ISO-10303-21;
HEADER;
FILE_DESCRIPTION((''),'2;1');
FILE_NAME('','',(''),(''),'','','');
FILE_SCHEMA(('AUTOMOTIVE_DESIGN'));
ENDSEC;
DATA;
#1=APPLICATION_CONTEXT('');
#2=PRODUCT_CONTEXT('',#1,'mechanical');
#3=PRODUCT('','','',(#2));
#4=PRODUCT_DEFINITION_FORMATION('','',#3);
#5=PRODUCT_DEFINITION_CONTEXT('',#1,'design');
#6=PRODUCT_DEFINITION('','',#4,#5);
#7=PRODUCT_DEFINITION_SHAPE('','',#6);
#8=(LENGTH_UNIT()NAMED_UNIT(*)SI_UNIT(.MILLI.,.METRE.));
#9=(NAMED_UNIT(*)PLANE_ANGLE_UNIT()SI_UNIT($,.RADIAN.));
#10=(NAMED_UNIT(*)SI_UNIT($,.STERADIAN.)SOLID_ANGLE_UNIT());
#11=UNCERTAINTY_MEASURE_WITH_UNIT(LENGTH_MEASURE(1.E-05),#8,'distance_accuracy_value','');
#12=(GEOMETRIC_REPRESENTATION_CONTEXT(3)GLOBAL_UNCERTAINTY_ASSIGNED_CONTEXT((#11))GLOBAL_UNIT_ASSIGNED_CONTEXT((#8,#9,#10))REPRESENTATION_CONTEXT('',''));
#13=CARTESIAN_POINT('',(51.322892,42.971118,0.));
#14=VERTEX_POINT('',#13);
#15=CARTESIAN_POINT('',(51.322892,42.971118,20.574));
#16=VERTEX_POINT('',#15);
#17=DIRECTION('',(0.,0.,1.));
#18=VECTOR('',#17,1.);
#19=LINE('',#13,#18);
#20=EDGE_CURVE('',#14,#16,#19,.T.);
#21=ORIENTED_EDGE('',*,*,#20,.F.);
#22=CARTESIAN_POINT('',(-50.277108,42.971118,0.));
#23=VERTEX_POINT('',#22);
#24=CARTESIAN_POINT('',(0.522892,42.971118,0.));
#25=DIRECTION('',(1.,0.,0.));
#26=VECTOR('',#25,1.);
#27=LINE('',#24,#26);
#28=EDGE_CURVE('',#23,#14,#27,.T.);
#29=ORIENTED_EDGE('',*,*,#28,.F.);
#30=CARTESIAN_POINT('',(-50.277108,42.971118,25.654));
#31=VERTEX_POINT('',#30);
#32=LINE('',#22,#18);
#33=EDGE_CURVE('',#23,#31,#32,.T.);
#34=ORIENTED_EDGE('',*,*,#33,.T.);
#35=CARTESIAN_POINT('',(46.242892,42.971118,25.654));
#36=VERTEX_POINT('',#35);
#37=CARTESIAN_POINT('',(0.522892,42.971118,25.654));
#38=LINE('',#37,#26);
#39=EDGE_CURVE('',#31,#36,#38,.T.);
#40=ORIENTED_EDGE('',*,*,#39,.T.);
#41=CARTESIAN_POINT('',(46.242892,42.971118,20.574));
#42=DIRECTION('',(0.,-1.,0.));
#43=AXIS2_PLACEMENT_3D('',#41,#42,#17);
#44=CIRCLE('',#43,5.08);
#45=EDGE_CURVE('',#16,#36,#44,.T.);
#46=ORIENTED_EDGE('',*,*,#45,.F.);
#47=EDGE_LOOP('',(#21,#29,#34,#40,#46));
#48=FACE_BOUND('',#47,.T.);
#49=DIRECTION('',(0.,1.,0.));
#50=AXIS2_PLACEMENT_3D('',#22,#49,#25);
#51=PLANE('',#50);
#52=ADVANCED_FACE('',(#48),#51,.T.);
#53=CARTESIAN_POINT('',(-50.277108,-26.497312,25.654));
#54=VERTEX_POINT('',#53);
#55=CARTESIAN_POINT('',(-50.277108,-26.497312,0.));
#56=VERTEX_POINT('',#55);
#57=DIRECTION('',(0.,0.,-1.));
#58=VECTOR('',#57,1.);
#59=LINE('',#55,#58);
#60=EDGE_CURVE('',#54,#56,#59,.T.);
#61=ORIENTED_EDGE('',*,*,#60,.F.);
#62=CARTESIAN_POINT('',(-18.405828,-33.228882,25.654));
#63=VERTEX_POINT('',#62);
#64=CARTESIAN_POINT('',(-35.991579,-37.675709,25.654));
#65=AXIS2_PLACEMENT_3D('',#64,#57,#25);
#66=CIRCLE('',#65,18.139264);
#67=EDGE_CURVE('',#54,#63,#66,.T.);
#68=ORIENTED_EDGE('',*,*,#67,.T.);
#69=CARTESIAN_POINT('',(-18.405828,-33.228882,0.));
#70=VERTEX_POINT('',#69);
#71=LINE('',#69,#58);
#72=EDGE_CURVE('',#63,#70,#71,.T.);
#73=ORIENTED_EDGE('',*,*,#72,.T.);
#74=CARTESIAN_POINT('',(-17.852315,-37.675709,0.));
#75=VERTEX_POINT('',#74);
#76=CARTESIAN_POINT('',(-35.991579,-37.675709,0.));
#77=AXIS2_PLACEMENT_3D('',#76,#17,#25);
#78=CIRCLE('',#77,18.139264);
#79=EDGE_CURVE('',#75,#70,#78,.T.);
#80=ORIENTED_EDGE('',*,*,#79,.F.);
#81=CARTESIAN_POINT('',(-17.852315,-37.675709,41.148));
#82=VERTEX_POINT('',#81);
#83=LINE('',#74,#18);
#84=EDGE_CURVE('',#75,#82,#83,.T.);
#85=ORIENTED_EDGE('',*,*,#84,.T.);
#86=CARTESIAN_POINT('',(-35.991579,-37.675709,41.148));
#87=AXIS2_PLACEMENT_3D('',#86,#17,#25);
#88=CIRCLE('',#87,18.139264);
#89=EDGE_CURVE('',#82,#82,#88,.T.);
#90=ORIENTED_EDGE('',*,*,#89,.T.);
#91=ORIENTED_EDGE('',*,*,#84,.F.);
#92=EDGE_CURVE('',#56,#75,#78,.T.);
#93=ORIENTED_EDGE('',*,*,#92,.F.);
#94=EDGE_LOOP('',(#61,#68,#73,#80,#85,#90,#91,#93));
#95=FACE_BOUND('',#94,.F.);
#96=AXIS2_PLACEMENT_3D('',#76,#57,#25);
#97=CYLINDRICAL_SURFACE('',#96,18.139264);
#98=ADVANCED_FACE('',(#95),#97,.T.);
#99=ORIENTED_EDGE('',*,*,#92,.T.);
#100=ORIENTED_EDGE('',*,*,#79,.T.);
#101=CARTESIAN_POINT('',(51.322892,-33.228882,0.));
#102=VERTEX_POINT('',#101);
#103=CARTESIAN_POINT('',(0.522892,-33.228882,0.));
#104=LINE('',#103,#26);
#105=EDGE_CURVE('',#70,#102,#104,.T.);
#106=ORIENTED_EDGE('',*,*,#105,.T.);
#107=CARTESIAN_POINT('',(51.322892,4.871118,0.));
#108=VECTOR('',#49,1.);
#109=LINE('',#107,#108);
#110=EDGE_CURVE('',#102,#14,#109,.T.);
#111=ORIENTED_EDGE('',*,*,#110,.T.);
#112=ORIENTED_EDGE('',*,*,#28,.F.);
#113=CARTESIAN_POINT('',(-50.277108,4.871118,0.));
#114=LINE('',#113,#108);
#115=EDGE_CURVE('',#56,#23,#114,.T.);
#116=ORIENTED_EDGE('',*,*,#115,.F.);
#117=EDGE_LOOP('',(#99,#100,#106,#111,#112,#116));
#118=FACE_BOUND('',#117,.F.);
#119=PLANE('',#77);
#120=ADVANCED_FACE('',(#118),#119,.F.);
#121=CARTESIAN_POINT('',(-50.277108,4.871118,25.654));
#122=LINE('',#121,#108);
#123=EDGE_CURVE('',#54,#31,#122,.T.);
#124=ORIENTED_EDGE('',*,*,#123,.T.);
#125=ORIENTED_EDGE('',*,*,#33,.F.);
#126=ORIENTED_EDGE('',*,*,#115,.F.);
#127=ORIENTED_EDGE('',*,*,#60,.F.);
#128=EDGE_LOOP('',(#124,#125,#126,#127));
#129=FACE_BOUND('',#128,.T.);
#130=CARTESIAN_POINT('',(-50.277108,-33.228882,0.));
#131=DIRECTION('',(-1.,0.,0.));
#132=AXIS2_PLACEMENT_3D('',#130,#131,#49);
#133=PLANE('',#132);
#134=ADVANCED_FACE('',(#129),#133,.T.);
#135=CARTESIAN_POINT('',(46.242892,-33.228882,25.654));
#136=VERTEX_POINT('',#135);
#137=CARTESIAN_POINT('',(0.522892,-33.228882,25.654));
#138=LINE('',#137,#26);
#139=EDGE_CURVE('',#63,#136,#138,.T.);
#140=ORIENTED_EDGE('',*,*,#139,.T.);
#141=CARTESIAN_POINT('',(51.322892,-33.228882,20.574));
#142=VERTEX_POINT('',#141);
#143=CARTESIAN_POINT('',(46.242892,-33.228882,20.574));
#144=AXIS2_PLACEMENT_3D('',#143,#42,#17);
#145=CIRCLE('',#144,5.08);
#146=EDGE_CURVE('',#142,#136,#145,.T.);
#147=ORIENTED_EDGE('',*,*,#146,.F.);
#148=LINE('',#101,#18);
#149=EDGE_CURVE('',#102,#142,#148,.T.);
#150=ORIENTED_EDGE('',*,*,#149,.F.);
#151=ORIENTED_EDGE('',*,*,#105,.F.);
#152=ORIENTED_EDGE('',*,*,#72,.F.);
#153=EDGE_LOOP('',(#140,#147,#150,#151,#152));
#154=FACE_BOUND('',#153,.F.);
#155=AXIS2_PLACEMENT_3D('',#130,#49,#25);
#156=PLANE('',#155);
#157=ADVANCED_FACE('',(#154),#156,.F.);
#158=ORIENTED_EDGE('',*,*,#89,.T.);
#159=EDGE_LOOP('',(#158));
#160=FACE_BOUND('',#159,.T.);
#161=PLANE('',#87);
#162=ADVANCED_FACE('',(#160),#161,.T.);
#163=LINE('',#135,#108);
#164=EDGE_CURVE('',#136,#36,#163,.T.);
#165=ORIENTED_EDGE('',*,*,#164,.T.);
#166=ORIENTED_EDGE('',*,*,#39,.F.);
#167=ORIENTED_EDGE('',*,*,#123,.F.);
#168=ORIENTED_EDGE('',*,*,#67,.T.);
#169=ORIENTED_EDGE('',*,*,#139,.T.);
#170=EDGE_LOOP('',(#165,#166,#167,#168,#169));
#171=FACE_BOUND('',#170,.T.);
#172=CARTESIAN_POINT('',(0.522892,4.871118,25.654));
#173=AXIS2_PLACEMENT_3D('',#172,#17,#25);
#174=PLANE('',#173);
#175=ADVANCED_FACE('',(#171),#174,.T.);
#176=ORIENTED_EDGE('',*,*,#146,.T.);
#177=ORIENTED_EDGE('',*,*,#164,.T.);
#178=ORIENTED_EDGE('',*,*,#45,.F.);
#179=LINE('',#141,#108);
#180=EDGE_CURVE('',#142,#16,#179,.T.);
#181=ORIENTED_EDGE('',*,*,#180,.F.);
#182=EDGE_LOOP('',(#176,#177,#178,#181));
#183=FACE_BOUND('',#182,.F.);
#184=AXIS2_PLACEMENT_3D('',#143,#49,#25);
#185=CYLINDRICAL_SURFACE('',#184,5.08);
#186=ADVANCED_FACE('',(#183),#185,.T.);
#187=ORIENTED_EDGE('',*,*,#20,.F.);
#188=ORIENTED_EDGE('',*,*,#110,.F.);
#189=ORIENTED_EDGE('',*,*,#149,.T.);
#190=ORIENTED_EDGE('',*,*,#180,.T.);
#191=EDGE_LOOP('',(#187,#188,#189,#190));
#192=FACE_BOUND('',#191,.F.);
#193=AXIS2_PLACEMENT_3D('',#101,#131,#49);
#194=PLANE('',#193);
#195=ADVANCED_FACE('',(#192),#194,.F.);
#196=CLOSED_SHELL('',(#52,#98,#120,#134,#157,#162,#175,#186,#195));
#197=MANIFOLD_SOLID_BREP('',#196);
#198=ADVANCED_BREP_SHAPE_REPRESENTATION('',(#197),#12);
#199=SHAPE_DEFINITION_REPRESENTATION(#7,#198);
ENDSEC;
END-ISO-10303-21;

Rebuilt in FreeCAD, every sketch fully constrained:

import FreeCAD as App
import Part
import Sketcher
from FreeCAD import Vector
Q = App.Units.Quantity


def edges_at(feature, points):
    """Names of the edges that pass closest to the given points."""
    edges = feature.Shape.Edges
    near = lambda p: min(range(len(edges)), key=lambda i: edges[i].distToShape(Part.Vertex(*p))[0])
    return sorted({f"Edge{near(p) + 1}" for p in points})


def add_polygon(sketch, points):
    """Adds a closed chain of lines whose ends are joined by coincident constraints."""
    first, n = sketch.GeometryCount, len(points)
    for a, b in zip(points, points[1:] + points[:1]):
        sketch.addGeometry(Part.LineSegment(App.Vector(*a, 0), App.Vector(*b, 0)), False)
    for i in range(n):
        sketch.addConstraint(Sketcher.Constraint("Coincident", first + i, 2, first + (i + 1) % n, 1))

doc = App.newDocument("Part")
body = doc.addObject("PartDesign::Body", "Body")

# Sketch on XY plane
sketch1 = body.newObject("Sketcher::SketchObject", "Sketch")
sketch1.AttachmentSupport = (doc.getObject("XY_Plane"), [""])
sketch1.MapMode = "FlatFace"
add_polygon(sketch1, [(-50.277108, 42.971118), (-50.277108, -33.228882), (51.322892, -33.228882), (51.322892, 42.971118)])  # lines 0-3
sketch1.addConstraint(Sketcher.Constraint("Vertical", 0))
sketch1.addConstraint(Sketcher.Constraint("Horizontal", 1))
sketch1.addConstraint(Sketcher.Constraint("Vertical", 2))
sketch1.addConstraint(Sketcher.Constraint("Horizontal", 3))
sketch1.addConstraint(Sketcher.Constraint("DistanceX", 1, 1, 1, 2, Q("4 in")))
sketch1.addConstraint(Sketcher.Constraint("DistanceY", 0, 2, 0, 1, Q("3 in")))
sketch1.addConstraint(Sketcher.Constraint("DistanceX", 0, 2, -1, 1, Q("50.277108 mm")))
sketch1.addConstraint(Sketcher.Constraint("DistanceY", 0, 2, -1, 1, Q("33.228882 mm")))
pad1 = body.newObject("PartDesign::Pad", "Pad")
pad1.Profile = sketch1
pad1.Length = Q("1.01 in")
doc.recompute()

fillet = body.newObject("PartDesign::Fillet", "Fillet")
fillet.Base = (pad1, edges_at(pad1, [(51.323, 4.871, 25.654)]))
fillet.Radius = Q("0.2 in")

# Sketch on XY plane
sketch2 = body.newObject("Sketcher::SketchObject", "Sketch001")
sketch2.AttachmentSupport = (doc.getObject("XY_Plane"), [""])
sketch2.MapMode = "FlatFace"
sketch2.addGeometry(Part.Circle(Vector(-35.991579, -37.675709, 0), Vector(0, 0, 1), 18.139264), False)
sketch2.addConstraint(Sketcher.Constraint("Diameter", 0, Q("36.278528 mm")))
sketch2.addConstraint(Sketcher.Constraint("DistanceX", 0, 3, -1, 1, Q("35.991579 mm")))
sketch2.addConstraint(Sketcher.Constraint("DistanceY", 0, 3, -1, 1, Q("37.675709 mm")))
pad2 = body.newObject("PartDesign::Pad", "Pad001")
pad2.Profile = sketch2
pad2.Length = Q("1.62 in")

doc.recompute()
